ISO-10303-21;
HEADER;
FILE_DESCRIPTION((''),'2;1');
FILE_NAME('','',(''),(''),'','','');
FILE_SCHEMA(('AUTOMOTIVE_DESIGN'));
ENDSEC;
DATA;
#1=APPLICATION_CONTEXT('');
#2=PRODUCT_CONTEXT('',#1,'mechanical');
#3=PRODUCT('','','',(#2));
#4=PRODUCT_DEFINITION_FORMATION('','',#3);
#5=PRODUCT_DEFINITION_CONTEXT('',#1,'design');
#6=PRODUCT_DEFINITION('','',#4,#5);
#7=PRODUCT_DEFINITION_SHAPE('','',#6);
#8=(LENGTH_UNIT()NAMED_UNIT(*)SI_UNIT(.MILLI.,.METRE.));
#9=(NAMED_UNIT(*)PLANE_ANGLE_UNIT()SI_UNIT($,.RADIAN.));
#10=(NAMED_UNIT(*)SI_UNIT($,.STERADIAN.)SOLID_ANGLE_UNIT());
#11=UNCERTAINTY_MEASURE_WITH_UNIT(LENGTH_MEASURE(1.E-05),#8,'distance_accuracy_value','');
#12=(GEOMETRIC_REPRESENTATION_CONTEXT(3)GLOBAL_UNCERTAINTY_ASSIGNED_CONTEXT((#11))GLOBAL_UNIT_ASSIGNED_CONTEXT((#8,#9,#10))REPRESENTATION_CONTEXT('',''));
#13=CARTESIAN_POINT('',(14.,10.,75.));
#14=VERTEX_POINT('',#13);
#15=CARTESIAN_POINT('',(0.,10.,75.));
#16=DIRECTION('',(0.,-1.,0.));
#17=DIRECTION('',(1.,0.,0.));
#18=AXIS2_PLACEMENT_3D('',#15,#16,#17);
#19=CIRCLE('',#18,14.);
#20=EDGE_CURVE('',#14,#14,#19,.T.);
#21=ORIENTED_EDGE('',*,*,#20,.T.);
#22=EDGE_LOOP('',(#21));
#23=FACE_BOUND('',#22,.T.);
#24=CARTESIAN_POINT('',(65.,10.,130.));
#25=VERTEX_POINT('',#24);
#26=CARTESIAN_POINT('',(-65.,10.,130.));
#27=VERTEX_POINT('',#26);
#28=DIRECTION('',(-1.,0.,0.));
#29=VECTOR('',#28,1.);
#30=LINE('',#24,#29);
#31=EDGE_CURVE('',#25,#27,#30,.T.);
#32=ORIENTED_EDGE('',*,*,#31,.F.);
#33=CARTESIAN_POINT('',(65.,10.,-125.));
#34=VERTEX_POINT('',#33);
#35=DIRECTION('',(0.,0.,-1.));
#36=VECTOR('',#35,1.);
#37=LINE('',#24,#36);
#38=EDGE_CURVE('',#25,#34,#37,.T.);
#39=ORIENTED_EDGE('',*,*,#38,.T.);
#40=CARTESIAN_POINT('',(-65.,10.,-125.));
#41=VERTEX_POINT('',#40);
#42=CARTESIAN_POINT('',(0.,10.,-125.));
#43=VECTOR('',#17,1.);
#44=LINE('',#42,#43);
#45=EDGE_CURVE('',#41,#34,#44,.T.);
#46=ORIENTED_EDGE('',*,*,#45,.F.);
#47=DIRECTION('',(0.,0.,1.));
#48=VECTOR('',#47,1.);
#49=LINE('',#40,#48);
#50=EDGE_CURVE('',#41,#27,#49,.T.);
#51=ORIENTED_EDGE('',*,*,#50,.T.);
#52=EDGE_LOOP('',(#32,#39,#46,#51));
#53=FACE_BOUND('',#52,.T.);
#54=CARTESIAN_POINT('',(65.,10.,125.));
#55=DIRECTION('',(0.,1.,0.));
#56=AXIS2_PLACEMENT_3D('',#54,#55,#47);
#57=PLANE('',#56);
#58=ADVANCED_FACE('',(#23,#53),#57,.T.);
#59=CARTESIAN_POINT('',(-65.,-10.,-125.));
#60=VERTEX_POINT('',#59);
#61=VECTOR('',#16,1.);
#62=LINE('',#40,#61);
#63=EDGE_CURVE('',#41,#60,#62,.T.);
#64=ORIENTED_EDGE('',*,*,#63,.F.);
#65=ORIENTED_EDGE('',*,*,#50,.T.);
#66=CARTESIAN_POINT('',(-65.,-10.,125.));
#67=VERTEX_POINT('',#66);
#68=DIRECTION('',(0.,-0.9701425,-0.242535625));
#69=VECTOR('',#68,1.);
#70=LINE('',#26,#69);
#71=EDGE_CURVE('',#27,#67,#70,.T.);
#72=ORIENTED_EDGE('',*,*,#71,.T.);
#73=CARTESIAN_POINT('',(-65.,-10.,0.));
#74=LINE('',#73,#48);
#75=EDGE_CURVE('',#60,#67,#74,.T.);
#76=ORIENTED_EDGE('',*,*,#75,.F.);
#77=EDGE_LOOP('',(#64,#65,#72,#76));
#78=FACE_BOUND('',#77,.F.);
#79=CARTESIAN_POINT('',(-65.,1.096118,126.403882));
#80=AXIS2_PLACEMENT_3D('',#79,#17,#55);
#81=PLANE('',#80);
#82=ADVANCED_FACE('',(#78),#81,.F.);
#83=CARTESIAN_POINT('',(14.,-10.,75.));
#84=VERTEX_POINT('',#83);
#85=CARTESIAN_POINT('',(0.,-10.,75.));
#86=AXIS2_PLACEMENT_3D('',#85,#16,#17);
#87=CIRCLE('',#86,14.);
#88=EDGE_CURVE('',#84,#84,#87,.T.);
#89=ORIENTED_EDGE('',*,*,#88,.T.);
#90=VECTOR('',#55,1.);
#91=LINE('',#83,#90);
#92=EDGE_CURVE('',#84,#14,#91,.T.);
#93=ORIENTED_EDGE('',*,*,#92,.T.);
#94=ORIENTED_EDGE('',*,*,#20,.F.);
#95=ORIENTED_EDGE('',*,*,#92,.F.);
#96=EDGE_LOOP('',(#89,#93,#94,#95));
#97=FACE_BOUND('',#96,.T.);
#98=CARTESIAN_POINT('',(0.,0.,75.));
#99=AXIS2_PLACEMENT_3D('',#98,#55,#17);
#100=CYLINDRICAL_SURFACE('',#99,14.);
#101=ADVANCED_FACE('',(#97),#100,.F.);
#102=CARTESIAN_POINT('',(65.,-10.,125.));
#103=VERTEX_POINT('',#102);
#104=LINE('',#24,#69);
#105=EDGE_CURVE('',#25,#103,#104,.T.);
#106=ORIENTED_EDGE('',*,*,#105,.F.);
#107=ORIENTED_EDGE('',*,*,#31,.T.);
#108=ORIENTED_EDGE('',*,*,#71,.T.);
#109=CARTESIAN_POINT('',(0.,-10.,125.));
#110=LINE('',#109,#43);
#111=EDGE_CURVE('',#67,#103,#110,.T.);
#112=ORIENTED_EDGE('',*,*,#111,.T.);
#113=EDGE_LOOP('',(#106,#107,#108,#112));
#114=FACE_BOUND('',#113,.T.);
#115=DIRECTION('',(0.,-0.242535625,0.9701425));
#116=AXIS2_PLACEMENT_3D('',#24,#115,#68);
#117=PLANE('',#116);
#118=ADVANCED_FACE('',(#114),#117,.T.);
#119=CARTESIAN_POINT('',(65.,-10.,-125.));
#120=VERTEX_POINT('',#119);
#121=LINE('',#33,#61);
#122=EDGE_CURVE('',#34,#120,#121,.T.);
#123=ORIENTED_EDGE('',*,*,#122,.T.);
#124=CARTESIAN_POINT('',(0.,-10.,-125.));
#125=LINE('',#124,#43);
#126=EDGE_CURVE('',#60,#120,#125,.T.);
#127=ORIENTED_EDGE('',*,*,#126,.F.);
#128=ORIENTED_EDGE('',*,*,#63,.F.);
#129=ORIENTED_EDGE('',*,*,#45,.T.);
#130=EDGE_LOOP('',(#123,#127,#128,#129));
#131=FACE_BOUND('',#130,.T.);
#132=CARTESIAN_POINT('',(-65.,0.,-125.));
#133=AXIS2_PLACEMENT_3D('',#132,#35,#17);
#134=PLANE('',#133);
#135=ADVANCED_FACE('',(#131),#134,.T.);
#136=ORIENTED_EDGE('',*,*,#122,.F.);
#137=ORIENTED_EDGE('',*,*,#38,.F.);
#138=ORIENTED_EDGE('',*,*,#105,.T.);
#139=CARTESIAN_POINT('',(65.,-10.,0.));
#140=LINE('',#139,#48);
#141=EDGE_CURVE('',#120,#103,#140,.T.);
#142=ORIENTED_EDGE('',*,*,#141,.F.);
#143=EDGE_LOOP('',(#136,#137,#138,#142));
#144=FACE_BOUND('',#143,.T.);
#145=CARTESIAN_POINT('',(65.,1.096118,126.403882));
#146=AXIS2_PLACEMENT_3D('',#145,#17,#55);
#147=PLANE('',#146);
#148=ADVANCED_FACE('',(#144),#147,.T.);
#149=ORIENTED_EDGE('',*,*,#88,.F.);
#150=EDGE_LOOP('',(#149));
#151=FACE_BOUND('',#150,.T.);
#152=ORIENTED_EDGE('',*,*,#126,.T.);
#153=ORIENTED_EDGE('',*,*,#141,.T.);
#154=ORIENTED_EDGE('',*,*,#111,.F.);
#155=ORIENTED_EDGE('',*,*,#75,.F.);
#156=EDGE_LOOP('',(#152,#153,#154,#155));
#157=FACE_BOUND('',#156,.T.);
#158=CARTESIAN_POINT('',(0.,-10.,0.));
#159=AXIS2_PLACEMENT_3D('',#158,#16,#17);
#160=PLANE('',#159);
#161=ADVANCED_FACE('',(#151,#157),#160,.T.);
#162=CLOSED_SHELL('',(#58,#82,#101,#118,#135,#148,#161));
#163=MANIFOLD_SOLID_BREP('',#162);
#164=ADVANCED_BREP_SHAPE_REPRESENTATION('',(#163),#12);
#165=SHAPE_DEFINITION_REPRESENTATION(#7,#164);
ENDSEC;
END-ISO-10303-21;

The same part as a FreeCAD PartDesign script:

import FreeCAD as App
import Part
import Sketcher

V = App.Vector

doc = App.newDocument("Part")
body = doc.addObject("PartDesign::Body", "Body")

sketch1 = body.newObject("Sketcher::SketchObject", "Sketch")
sketch1.AttachmentSupport = (doc.getObject("XZ_Plane"), [""])
sketch1.MapMode = "FlatFace"
sketch1.addGeometry(Part.LineSegment(V(-65, 125, 0), V(-65, -125, 0)), False)
sketch1.addGeometry(Part.LineSegment(V(-65, -125, 0), V(65, -125, 0)), False)
sketch1.addGeometry(Part.LineSegment(V(65, -125, 0), V(65, 125, 0)), False)
sketch1.addGeometry(Part.LineSegment(V(65, 125, 0), V(-65, 125, 0)), False)
sketch1.addGeometry(Part.Circle(V(0, 75, 0), V(0, 0, 1), 14), False)
sketch1.addConstraint(Sketcher.Constraint("Coincident", 0, 2, 1, 1))
sketch1.addConstraint(Sketcher.Constraint("Coincident", 1, 2, 2, 1))
sketch1.addConstraint(Sketcher.Constraint("Coincident", 2, 2, 3, 1))
sketch1.addConstraint(Sketcher.Constraint("Coincident", 3, 2, 0, 1))
sketch1.addConstraint(Sketcher.Constraint("Vertical", 0))
sketch1.addConstraint(Sketcher.Constraint("Horizontal", 1))
sketch1.addConstraint(Sketcher.Constraint("Vertical", 2))
sketch1.addConstraint(Sketcher.Constraint("Horizontal", 3))
sketch1.addConstraint(Sketcher.Constraint("Symmetric", 0, 2, 2, 2, -1, 1))
sketch1.addConstraint(Sketcher.Constraint("PointOnObject", 4, 3, -2))
sketch1.addConstraint(Sketcher.Constraint("Diameter", 4, 28.0))
sketch1.addConstraint(Sketcher.Constraint("DistanceX", 1, 1, 1, 2, 130.0))
sketch1.addConstraint(Sketcher.Constraint("DistanceY", 0, 2, 0, 1, 250.0))
sketch1.addConstraint(Sketcher.Constraint("DistanceY", -1, 1, 4, 3, 75.0))
pad1 = body.newObject("PartDesign::Pad", "Pad")
pad1.Profile = sketch1
pad1.Length = 20
pad1.Midplane = True

sketch2 = body.newObject("Sketcher::SketchObject", "Sketch001")
sketch2.AttachmentSupport = (doc.getObject("YZ_Plane"), [""])
sketch2.MapMode = "FlatFace"
sketch2.AttachmentOffset = App.Placement(V(0, 0, 65), App.Rotation())
sketch2.addGeometry(Part.LineSegment(V(-10, 125, 0), V(10, 125, 0)), False)
sketch2.addGeometry(Part.LineSegment(V(10, 125, 0), V(10, 130, 0)), False)
sketch2.addGeometry(Part.LineSegment(V(10, 130, 0), V(-10, 125, 0)), False)
sketch2.addConstraint(Sketcher.Constraint("Coincident", 0, 2, 1, 1))
sketch2.addConstraint(Sketcher.Constraint("Coincident", 1, 2, 2, 1))
sketch2.addConstraint(Sketcher.Constraint("Coincident", 2, 2, 0, 1))
sketch2.addConstraint(Sketcher.Constraint("Horizontal", 0))
sketch2.addConstraint(Sketcher.Constraint("Vertical", 1))
sketch2.addConstraint(Sketcher.Constraint("DistanceX", 0, 1, 0, 2, 20.0))
sketch2.addConstraint(Sketcher.Constraint("DistanceY", 1, 1, 1, 2, 5.0))
sketch2.addConstraint(Sketcher.Constraint("DistanceX", -1, 1, 0, 2, 10.0))
sketch2.addConstraint(Sketcher.Constraint("DistanceY", -1, 1, 0, 2, 125.0))
pad2 = body.newObject("PartDesign::Pad", "Pad001")
pad2.Profile = sketch2
pad2.Length = 130
pad2.Reversed = True

doc.recompute()
